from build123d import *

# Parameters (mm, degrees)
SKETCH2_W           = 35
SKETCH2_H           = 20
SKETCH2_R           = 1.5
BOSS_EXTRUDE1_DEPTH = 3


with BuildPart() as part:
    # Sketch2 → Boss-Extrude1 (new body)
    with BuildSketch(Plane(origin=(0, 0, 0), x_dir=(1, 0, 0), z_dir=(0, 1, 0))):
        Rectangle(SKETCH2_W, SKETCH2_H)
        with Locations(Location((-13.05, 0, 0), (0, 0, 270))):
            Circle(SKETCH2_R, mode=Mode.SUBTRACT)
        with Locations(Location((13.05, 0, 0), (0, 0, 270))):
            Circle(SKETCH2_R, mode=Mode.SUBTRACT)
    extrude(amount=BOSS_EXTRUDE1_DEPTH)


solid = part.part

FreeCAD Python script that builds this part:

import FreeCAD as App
import Part
import Sketcher
from FreeCAD import Vector
Q = App.Units.Quantity

doc = App.newDocument("Part")
body = doc.addObject("PartDesign::Body", "Body")

sketch1 = body.newObject("Sketcher::SketchObject", "Sketch")
sketch1.AttachmentSupport = (doc.getObject("XZ_Plane"), [""])
sketch1.MapMode = "FlatFace"
sketch1.addGeometry([
    Part.LineSegment(Vector(-17.5, -10, 0), Vector(-17.5, 10, 0)),
    Part.LineSegment(Vector(-17.5, 10, 0), Vector(17.5, 10, 0)),
    Part.LineSegment(Vector(17.5, 10, 0), Vector(17.5, -10, 0)),
    Part.LineSegment(Vector(17.5, -10, 0), Vector(-17.5, -10, 0)),
    Part.Circle(Vector(-13.1, 0, 0), Vector(0, 0, 1), 1.5),
    Part.Circle(Vector(13.1, 0, 0), Vector(0, 0, 1), 1.5),
], False)
sketch1.addConstraint([
    Sketcher.Constraint("Coincident", 0, 2, 1, 1),
    Sketcher.Constraint("Coincident", 1, 2, 2, 1),
    Sketcher.Constraint("Coincident", 2, 2, 3, 1),
    Sketcher.Constraint("Coincident", 3, 2, 0, 1),
    Sketcher.Constraint("Vertical", 0),
    Sketcher.Constraint("Horizontal", 1),
    Sketcher.Constraint("Vertical", 2),
    Sketcher.Constraint("Horizontal", 3),
    Sketcher.Constraint("Equal", 4, 5),
    Sketcher.Constraint("Symmetric", 4, 3, 5, 3, -1, 1),
    Sketcher.Constraint("Symmetric", 0, 2, 2, 2, -1, 1),
    Sketcher.Constraint("PointOnObject", 4, 3, -1),
    Sketcher.Constraint("Diameter", 4, Q("3 mm")),
    Sketcher.Constraint("DistanceX", 1, 1, 1, 2, Q("35 mm")),
    Sketcher.Constraint("DistanceY", 0, 1, 0, 2, Q("20 mm")),
    Sketcher.Constraint("DistanceX", 4, 3, 5, 3, Q("26.1 mm")),
])
pad1 = body.newObject("PartDesign::Pad", "Pad")
pad1.Profile = sketch1
pad1.Length = 3
pad1.Reversed = True

doc.recompute()
